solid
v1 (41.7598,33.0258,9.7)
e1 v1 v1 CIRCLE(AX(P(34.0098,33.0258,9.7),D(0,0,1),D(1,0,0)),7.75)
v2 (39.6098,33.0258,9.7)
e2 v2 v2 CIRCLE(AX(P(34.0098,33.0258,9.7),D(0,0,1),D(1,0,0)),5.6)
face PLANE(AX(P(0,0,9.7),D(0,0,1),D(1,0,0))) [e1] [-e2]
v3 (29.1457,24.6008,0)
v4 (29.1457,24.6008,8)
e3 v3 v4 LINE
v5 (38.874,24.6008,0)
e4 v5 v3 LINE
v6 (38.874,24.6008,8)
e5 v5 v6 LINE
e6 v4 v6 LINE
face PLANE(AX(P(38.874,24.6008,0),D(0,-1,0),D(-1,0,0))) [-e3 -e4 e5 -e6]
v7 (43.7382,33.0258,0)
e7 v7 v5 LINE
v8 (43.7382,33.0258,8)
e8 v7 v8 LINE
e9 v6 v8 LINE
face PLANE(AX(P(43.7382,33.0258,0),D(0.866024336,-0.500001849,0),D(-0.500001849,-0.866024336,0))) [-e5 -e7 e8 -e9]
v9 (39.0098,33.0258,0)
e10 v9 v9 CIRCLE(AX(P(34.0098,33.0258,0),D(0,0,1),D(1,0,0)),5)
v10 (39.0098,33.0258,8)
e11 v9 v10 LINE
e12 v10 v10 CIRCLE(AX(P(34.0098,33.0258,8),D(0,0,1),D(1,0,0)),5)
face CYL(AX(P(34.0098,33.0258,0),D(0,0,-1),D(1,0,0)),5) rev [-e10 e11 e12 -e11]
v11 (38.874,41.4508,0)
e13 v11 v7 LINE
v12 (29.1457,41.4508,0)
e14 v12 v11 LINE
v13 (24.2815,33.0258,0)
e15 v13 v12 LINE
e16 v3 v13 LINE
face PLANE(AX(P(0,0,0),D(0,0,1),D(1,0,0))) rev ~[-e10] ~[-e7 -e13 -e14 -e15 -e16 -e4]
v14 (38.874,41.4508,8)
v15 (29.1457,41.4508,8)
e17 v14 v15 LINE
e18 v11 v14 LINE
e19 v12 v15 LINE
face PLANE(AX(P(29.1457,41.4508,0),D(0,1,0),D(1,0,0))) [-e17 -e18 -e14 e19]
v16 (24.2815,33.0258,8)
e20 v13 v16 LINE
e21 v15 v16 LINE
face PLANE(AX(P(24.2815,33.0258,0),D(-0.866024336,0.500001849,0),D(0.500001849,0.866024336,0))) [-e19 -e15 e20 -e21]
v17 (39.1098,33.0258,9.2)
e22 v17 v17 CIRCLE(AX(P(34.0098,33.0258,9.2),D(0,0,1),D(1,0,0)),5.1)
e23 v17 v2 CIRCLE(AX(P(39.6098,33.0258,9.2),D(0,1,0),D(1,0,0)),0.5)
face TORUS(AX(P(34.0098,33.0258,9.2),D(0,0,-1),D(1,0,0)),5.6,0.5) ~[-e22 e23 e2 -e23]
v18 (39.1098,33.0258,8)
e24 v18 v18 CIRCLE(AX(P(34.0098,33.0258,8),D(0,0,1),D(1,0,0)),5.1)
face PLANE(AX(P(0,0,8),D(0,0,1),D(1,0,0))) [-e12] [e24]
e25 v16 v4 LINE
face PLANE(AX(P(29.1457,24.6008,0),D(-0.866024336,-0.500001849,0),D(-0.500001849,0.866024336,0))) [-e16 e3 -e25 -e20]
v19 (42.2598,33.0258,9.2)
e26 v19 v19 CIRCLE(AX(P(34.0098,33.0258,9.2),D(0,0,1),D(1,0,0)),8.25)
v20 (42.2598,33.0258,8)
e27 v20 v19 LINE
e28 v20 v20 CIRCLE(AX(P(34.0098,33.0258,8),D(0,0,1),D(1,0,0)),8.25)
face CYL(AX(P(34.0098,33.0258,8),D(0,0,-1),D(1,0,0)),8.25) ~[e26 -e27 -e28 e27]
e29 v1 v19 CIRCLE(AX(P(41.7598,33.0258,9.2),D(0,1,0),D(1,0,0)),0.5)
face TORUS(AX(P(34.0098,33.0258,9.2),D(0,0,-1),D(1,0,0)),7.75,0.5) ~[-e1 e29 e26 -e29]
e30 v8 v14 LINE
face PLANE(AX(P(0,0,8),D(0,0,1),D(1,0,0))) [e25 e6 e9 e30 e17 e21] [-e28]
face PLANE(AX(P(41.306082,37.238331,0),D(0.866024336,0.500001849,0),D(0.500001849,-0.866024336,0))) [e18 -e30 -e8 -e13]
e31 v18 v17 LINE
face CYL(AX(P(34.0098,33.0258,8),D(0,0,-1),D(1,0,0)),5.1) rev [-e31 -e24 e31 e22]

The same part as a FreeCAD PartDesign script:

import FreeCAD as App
import Part
import Sketcher
Q = App.Units.Quantity


def edges_at(feature, points):
    """Names of the edges that pass closest to the given points."""
    edges = feature.Shape.Edges
    near = lambda p: min(range(len(edges)), key=lambda i: edges[i].distToShape(Part.Vertex(*p))[0])
    return sorted({f"Edge{near(p) + 1}" for p in points})

doc = App.newDocument("Part")
body = doc.addObject("PartDesign::Body", "Body")

# Sketch on XY plane
sketch1 = doc.addObject("Sketcher::SketchObject", "Sketch")
body.addObject(sketch1)
sketch1.AttachmentSupport = (doc.XY_Plane, [""])
sketch1.MapMode = "FlatFace"
sketch1.addGeometry(Part.LineSegment(App.Vector(44, 33, 0), App.Vector(39, 41, 0)), False)
sketch1.addGeometry(Part.LineSegment(App.Vector(39, 41, 0), App.Vector(29, 41, 0)), False)
sketch1.addGeometry(Part.LineSegment(App.Vector(29, 41, 0), App.Vector(24, 33, 0)), False)
sketch1.addGeometry(Part.LineSegment(App.Vector(24, 33, 0), App.Vector(29, 25, 0)), False)
sketch1.addGeometry(Part.LineSegment(App.Vector(29, 25, 0), App.Vector(39, 25, 0)), False)
sketch1.addGeometry(Part.LineSegment(App.Vector(39, 25, 0), App.Vector(44, 33, 0)), False)
sketch1.addGeometry(Part.Circle(App.Vector(34, 33, 0), App.Vector(0, 0, 1), 5), False)
sketch1.addConstraint(Sketcher.Constraint("Coincident", 0, 2, 1, 1))
sketch1.addConstraint(Sketcher.Constraint("Coincident", 1, 2, 2, 1))
sketch1.addConstraint(Sketcher.Constraint("Coincident", 2, 2, 3, 1))
sketch1.addConstraint(Sketcher.Constraint("Coincident", 3, 2, 4, 1))
sketch1.addConstraint(Sketcher.Constraint("Coincident", 4, 2, 5, 1))
sketch1.addConstraint(Sketcher.Constraint("Coincident", 5, 2, 0, 1))
sketch1.addConstraint(Sketcher.Constraint("Horizontal", 1))
sketch1.addConstraint(Sketcher.Constraint("Horizontal", 4))
sketch1.addConstraint(Sketcher.Constraint("Parallel", 0, 3))
sketch1.addConstraint(Sketcher.Constraint("Parallel", 2, 5))
sketch1.addConstraint(Sketcher.Constraint("Horizontal", 6, 3, 2, 2))
sketch1.addConstraint(Sketcher.Constraint("Horizontal", 2, 2, 5, 2))
sketch1.addConstraint(Sketcher.Constraint("Vertical", 1, 2, 3, 2))
sketch1.addConstraint(Sketcher.Constraint("Vertical", 0, 2, 4, 2))
sketch1.addConstraint(Sketcher.Constraint("Diameter", 6, 10.0))
sketch1.addConstraint(Sketcher.Constraint("Angle", 0, Q("120.0001 deg")))
sketch1.addConstraint(Sketcher.Constraint("DistanceY", 3, 2, 1, 2, 16.85))
sketch1.addConstraint(Sketcher.Constraint("DistanceX", 1, 2, 1, 1, 9.7283))
sketch1.addConstraint(Sketcher.Constraint("DistanceX", -1, 1, 0, 2, 38.874))
sketch1.addConstraint(Sketcher.Constraint("DistanceX", 1, 2, 6, 3, 4.864))
sketch1.addConstraint(Sketcher.Constraint("DistanceY", -1, 1, 6, 3, 33.0258))
pad1 = doc.addObject("PartDesign::Pad", "Pad")
body.addObject(pad1)
pad1.Profile = sketch1
pad1.Length = 8

# Sketch on XY plane
sketch2 = doc.addObject("Sketcher::SketchObject", "Sketch001")
body.addObject(sketch2)
sketch2.AttachmentSupport = (doc.XY_Plane, [""])
sketch2.MapMode = "FlatFace"
sketch2.AttachmentOffset = App.Placement(App.Vector(0, 0, 8), App.Rotation())
sketch2.addGeometry(Part.Circle(App.Vector(34, 33, 0), App.Vector(0, 0, 1), 8), False)
sketch2.addGeometry(Part.Circle(App.Vector(34, 33, 0), App.Vector(0, 0, 1), 5), False)
sketch2.addConstraint(Sketcher.Constraint("Coincident", 1, 3, 0, 3))
sketch2.addConstraint(Sketcher.Constraint("Diameter", 0, 16.5))
sketch2.addConstraint(Sketcher.Constraint("Diameter", 1, 10.2))
sketch2.addConstraint(Sketcher.Constraint("DistanceX", -1, 1, 0, 3, 34.0098))
sketch2.addConstraint(Sketcher.Constraint("DistanceY", -1, 1, 0, 3, 33.0258))
pad2 = doc.addObject("PartDesign::Pad", "Pad001")
body.addObject(pad2)
pad2.Profile = sketch2
pad2.Length = 1.7
doc.recompute()

fillet = doc.addObject("PartDesign::Fillet", "Fillet")
body.addObject(fillet)
fillet.Base = (pad2, edges_at(pad2, [(28.91, 33.026, 9.7), (25.76, 33.026, 9.7)]))
fillet.Radius = 0.5

doc.recompute()
